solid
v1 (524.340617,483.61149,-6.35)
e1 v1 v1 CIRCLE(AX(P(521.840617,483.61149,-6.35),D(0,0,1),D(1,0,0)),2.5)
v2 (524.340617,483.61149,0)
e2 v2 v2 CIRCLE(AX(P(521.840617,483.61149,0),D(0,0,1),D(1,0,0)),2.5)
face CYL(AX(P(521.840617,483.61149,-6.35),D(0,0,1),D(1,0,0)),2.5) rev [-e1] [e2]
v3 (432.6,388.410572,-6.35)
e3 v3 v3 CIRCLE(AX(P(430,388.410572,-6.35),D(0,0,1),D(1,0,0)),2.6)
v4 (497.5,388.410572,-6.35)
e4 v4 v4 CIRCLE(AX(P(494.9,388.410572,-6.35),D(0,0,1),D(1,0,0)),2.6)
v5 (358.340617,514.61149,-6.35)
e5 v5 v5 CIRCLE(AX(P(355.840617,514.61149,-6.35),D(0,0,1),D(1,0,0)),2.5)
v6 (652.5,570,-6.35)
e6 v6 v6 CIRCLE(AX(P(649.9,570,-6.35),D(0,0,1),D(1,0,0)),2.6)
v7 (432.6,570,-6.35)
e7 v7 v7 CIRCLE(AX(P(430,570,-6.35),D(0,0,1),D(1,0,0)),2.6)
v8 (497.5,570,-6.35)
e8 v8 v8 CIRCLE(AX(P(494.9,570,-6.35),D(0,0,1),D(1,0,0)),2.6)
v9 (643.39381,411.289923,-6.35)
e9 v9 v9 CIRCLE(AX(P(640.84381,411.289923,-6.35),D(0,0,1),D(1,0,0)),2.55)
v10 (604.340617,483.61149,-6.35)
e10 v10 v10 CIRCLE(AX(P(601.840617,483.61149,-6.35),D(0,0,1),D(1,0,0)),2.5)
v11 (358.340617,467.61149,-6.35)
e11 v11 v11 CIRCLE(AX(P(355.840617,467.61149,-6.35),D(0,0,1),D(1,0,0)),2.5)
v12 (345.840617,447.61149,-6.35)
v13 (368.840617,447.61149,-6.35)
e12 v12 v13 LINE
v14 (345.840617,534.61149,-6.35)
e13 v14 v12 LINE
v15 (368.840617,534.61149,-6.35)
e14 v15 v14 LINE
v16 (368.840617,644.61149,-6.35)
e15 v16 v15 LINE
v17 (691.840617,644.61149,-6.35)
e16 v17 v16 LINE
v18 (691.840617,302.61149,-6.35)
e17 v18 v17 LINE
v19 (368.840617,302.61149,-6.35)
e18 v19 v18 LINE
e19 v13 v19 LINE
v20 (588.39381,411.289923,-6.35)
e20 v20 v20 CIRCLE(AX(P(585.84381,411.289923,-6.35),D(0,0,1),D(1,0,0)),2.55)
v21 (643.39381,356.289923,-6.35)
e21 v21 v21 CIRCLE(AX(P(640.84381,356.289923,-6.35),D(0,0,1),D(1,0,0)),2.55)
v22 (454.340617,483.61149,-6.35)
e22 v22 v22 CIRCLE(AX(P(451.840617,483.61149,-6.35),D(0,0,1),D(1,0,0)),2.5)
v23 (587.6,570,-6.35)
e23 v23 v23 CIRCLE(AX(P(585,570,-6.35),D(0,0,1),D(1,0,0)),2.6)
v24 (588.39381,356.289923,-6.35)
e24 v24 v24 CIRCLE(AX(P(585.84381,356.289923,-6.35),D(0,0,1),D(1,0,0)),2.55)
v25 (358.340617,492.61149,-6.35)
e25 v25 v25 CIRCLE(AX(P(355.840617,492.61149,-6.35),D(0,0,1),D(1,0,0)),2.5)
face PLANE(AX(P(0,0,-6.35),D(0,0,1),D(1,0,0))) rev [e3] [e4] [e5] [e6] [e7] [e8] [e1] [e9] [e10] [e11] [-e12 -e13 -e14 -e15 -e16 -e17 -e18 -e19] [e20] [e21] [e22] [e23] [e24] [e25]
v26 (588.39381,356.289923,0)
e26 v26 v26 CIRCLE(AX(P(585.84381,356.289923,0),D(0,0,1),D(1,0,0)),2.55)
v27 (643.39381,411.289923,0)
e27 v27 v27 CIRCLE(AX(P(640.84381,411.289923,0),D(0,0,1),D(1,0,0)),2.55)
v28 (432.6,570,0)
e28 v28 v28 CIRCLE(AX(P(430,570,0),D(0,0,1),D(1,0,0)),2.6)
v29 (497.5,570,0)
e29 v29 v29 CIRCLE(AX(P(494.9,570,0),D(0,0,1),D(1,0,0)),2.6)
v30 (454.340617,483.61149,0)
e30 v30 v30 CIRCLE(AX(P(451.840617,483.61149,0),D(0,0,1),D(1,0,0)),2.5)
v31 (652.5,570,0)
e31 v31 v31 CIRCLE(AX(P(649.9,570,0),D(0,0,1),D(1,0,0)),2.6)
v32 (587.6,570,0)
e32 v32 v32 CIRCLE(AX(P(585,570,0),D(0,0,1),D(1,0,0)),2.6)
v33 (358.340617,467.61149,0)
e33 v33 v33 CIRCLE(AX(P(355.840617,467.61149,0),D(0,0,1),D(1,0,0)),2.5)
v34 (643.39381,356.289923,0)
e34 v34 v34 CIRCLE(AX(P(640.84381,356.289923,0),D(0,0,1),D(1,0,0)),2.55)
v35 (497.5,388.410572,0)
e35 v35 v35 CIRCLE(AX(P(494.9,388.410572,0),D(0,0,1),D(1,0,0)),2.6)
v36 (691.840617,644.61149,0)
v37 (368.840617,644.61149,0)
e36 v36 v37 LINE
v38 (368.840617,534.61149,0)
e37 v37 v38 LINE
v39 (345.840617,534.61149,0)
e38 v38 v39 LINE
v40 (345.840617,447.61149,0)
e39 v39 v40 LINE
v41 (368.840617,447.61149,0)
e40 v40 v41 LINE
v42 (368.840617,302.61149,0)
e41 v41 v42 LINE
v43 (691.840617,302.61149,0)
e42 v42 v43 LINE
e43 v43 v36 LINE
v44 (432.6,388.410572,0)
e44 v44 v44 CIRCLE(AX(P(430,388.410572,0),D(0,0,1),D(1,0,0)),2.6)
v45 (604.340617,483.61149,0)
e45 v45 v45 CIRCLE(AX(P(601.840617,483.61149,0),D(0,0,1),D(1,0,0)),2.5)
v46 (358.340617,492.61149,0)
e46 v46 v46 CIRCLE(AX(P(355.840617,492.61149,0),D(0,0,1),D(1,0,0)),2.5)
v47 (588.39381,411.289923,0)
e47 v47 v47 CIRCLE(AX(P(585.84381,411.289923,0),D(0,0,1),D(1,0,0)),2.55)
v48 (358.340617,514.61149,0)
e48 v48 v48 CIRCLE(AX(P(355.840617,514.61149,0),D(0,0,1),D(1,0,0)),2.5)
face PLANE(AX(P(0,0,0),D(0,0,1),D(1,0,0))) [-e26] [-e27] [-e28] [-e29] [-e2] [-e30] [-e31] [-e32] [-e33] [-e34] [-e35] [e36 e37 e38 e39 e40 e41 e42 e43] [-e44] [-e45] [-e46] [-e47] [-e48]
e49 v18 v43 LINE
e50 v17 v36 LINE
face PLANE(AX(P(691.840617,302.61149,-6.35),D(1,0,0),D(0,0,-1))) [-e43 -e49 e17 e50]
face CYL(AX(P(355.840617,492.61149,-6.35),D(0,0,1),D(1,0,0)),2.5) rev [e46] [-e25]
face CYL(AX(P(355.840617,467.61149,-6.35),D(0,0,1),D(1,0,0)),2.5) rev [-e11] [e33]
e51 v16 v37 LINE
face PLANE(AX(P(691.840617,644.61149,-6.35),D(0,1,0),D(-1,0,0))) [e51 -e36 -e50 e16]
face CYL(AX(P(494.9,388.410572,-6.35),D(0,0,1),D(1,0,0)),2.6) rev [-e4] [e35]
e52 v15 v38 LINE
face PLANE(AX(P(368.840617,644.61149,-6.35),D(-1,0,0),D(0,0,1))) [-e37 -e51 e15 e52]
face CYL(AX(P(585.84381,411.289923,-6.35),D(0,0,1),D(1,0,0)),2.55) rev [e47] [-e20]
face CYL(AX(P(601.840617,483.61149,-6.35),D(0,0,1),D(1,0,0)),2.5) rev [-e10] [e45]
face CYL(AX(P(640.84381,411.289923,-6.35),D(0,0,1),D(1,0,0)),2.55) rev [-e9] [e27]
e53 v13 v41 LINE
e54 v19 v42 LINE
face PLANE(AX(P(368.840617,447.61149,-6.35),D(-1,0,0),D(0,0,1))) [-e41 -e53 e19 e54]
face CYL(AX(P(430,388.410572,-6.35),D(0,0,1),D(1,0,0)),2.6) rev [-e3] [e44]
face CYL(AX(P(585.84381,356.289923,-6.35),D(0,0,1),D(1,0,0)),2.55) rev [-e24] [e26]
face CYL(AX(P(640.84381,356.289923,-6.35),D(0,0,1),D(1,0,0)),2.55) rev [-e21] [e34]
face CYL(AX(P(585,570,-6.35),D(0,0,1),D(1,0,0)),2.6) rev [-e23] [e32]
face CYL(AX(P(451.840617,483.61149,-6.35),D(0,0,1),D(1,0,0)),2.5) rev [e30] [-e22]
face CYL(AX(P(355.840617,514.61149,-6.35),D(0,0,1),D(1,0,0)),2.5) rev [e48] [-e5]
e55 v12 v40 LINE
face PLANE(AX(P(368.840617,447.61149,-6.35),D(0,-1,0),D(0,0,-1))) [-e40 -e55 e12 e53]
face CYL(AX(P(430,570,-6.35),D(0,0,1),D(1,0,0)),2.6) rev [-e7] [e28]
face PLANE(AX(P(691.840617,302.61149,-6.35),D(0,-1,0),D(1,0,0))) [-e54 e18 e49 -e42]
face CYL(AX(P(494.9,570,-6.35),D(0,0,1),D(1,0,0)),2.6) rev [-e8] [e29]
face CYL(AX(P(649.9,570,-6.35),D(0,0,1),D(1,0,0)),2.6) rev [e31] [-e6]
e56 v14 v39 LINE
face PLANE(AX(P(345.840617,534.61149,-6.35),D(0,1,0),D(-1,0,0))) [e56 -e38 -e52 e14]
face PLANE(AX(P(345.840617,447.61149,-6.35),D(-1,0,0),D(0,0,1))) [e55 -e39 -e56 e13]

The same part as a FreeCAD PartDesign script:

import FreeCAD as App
import Part
import Sketcher
from FreeCAD import Vector
Q = App.Units.Quantity


def add_polygon(sketch, points):
    """Adds a closed chain of lines whose ends are joined by coincident constraints."""
    first, n = sketch.GeometryCount, len(points)
    for a, b in zip(points, points[1:] + points[:1]):
        sketch.addGeometry(Part.LineSegment(App.Vector(*a, 0), App.Vector(*b, 0)), False)
    for i in range(n):
        sketch.addConstraint(Sketcher.Constraint("Coincident", first + i, 2, first + (i + 1) % n, 1))

doc = App.newDocument("Part")
params = doc.addObject("Spreadsheet::Sheet", "Params")
for row, (alias, value) in enumerate([
    ("sketch1_diameter", "5 mm"),
    ("sketch1_diameter2", "5.1 mm"),
    ("sketch1_diameter3", "5.2 mm"),
    ("sketch1_width", "323 mm"),
    ("sketch1_width2", "23 mm"),
    ("pad1_length", "6.35 mm"),
], start=1):
    params.set(f"A{row}", alias)
    params.set(f"B{row}", "=" + value)
    params.setAlias(f"B{row}", alias)

body = doc.addObject("PartDesign::Body", "Body")

# Sketch on XY plane
sketch1 = doc.addObject("Sketcher::SketchObject", "Sketch")
body.addObject(sketch1)
sketch1.AttachmentSupport = (doc.XY_Plane, [""])
sketch1.MapMode = "FlatFace"
add_polygon(sketch1, [(368.840617, 302.61149), (691.840617, 302.61149), (691.840617, 644.61149), (368.840617, 644.61149), (368.840617, 534.61149), (345.840617, 534.61149), (345.840617, 447.61149), (368.840617, 447.61149)])  # lines 0-7
sketch1.addGeometry(Part.Circle(Vector(640.84381, 356.289923, 0), Vector(0, 0, 1), 2.55), False)  # 8
sketch1.addGeometry(Part.Circle(Vector(585.84381, 356.289923, 0), Vector(0, 0, 1), 2.55), False)  # 9
sketch1.addGeometry(Part.Circle(Vector(640.84381, 411.289923, 0), Vector(0, 0, 1), 2.55), False)  # 10
sketch1.addGeometry(Part.Circle(Vector(585.84381, 411.289923, 0), Vector(0, 0, 1), 2.55), False)  # 11
sketch1.addGeometry(Part.Circle(Vector(494.9, 388.410572, 0), Vector(0, 0, 1), 2.6), False)  # 12
sketch1.addGeometry(Part.Circle(Vector(430, 388.410572, 0), Vector(0, 0, 1), 2.6), False)  # 13
sketch1.addGeometry(Part.Circle(Vector(601.840617, 483.61149, 0), Vector(0, 0, 1), 2.5), False)  # 14
sketch1.addGeometry(Part.Circle(Vector(521.840617, 483.61149, 0), Vector(0, 0, 1), 2.5), False)  # 15
sketch1.addGeometry(Part.Circle(Vector(649.9, 570, 0), Vector(0, 0, 1), 2.6), False)  # 16
sketch1.addGeometry(Part.Circle(Vector(585, 570, 0), Vector(0, 0, 1), 2.6), False)  # 17
sketch1.addGeometry(Part.Circle(Vector(451.840617, 483.61149, 0), Vector(0, 0, 1), 2.5), False)  # 18
sketch1.addGeometry(Part.Circle(Vector(355.840617, 467.61149, 0), Vector(0, 0, 1), 2.5), False)  # 19
sketch1.addGeometry(Part.Circle(Vector(355.840617, 492.61149, 0), Vector(0, 0, 1), 2.5), False)  # 20
sketch1.addGeometry(Part.Circle(Vector(355.840617, 514.61149, 0), Vector(0, 0, 1), 2.5), False)  # 21
sketch1.addGeometry(Part.Circle(Vector(494.9, 570, 0), Vector(0, 0, 1), 2.6), False)  # 22
sketch1.addGeometry(Part.Circle(Vector(430, 570, 0), Vector(0, 0, 1), 2.6), False)  # 23
sketch1.addConstraint([
    Sketcher.Constraint("Horizontal", 0),
    Sketcher.Constraint("Vertical", 1),
    Sketcher.Constraint("Horizontal", 2),
    Sketcher.Constraint("Vertical", 3),
    Sketcher.Constraint("Horizontal", 4),
    Sketcher.Constraint("Vertical", 5),
    Sketcher.Constraint("Horizontal", 6),
    Sketcher.Constraint("Vertical", 7),
    Sketcher.Constraint("Equal", 8, 9),
    Sketcher.Constraint("Equal", 9, 10),
    Sketcher.Constraint("Equal", 10, 11),
    Sketcher.Constraint("Equal", 12, 13),
    Sketcher.Constraint("Equal", 14, 15),
    Sketcher.Constraint("Equal", 13, 16),
    Sketcher.Constraint("Equal", 16, 17),
    Sketcher.Constraint("Equal", 15, 18),
    Sketcher.Constraint("Equal", 18, 19),
    Sketcher.Constraint("Equal", 19, 20),
    Sketcher.Constraint("Equal", 20, 21),
    Sketcher.Constraint("Equal", 17, 22),
    Sketcher.Constraint("Equal", 22, 23),
    Sketcher.Constraint("Horizontal", 8, 3, 9, 3),
    Sketcher.Constraint("Horizontal", 10, 3, 11, 3),
    Sketcher.Constraint("Horizontal", 12, 3, 13, 3),
    Sketcher.Constraint("Horizontal", 14, 3, 15, 3),
    Sketcher.Constraint("Horizontal", 16, 3, 17, 3),
    Sketcher.Constraint("Horizontal", 15, 3, 18, 3),
    Sketcher.Constraint("Horizontal", 17, 3, 22, 3),
    Sketcher.Constraint("Horizontal", 22, 3, 23, 3),
    Sketcher.Constraint("Vertical", 8, 3, 10, 3),
    Sketcher.Constraint("Vertical", 9, 3, 11, 3),
    Sketcher.Constraint("Vertical", 19, 3, 20, 3),
    Sketcher.Constraint("Vertical", 20, 3, 21, 3),
    Sketcher.Constraint("Vertical", 12, 3, 22, 3),
    Sketcher.Constraint("Vertical", 13, 3, 23, 3),
    Sketcher.Constraint("Vertical", 3, 2, 6, 2),
    Sketcher.Constraint("Diameter", 14, Q("5 mm")),
    Sketcher.Constraint("Diameter", 8, Q("5.1 mm")),
    Sketcher.Constraint("Diameter", 12, Q("5.2 mm")),
    Sketcher.Constraint("DistanceX", 0, 1, 0, 2, Q("323 mm")),
    Sketcher.Constraint("DistanceX", 4, 2, 4, 1, Q("23 mm")),
    Sketcher.Constraint("DistanceY", 1, 1, 1, 2, Q("342 mm")),
    Sketcher.Constraint("DistanceY", 3, 2, 3, 1, Q("110 mm")),
    Sketcher.Constraint("DistanceY", 5, 2, 5, 1, Q("87 mm")),
    Sketcher.Constraint("DistanceX", -1, 1, 13, 3, Q("430 mm")),
    Sketcher.Constraint("DistanceY", -1, 1, 16, 3, Q("570 mm")),
    Sketcher.Constraint("DistanceX", -1, 1, 17, 3, Q("585 mm")),
    Sketcher.Constraint("DistanceX", 9, 3, 8, 3, Q("55 mm")),
    Sketcher.Constraint("DistanceY", 8, 3, 10, 3, Q("55 mm")),
    Sketcher.Constraint("DistanceX", 15, 3, 14, 3, Q("80 mm")),
    Sketcher.Constraint("DistanceX", 18, 3, 15, 3, Q("70 mm")),
    Sketcher.Constraint("DistanceX", 19, 3, 18, 3, Q("96 mm")),
    Sketcher.Constraint("DistanceY", 19, 3, 18, 3, Q("16 mm")),
    Sketcher.Constraint("DistanceY", 19, 3, 20, 3, Q("25 mm")),
    Sketcher.Constraint("DistanceY", 20, 3, 21, 3, Q("22 mm")),
    Sketcher.Constraint("DistanceX", 14, 3, 0, 2, Q("90 mm")),
    Sketcher.Constraint("DistanceY", 0, 2, 14, 3, Q("181 mm")),
    Sketcher.Constraint("DistanceX", -1, 1, 12, 3, Q("494.9 mm")),
    Sketcher.Constraint("DistanceX", -1, 1, 16, 3, Q("649.9 mm")),
    Sketcher.Constraint("DistanceX", -1, 1, 8, 3, Q("640.84381 mm")),
    Sketcher.Constraint("DistanceY", -1, 1, 12, 3, Q("388.410572 mm")),
    Sketcher.Constraint("DistanceY", -1, 1, 14, 3, Q("483.61149 mm")),
    Sketcher.Constraint("DistanceY", 12, 3, 11, 3, Q("22.879351 mm")),
    Sketcher.Constraint("DistanceX", -1, 1, 14, 3, Q("601.840617 mm")),
])
sketch1.setExpression("Constraints[44]", "Params.sketch1_diameter")
sketch1.setExpression("Constraints[45]", "Params.sketch1_diameter2")
sketch1.setExpression("Constraints[46]", "Params.sketch1_diameter3")
sketch1.setExpression("Constraints[47]", "Params.sketch1_width")
sketch1.setExpression("Constraints[48]", "Params.sketch1_width2")
pad1 = doc.addObject("PartDesign::Pad", "Pad")
body.addObject(pad1)
pad1.Profile = sketch1
pad1.setExpression("Length", "Params.pad1_length")
pad1.Reversed = True

doc.recompute()
